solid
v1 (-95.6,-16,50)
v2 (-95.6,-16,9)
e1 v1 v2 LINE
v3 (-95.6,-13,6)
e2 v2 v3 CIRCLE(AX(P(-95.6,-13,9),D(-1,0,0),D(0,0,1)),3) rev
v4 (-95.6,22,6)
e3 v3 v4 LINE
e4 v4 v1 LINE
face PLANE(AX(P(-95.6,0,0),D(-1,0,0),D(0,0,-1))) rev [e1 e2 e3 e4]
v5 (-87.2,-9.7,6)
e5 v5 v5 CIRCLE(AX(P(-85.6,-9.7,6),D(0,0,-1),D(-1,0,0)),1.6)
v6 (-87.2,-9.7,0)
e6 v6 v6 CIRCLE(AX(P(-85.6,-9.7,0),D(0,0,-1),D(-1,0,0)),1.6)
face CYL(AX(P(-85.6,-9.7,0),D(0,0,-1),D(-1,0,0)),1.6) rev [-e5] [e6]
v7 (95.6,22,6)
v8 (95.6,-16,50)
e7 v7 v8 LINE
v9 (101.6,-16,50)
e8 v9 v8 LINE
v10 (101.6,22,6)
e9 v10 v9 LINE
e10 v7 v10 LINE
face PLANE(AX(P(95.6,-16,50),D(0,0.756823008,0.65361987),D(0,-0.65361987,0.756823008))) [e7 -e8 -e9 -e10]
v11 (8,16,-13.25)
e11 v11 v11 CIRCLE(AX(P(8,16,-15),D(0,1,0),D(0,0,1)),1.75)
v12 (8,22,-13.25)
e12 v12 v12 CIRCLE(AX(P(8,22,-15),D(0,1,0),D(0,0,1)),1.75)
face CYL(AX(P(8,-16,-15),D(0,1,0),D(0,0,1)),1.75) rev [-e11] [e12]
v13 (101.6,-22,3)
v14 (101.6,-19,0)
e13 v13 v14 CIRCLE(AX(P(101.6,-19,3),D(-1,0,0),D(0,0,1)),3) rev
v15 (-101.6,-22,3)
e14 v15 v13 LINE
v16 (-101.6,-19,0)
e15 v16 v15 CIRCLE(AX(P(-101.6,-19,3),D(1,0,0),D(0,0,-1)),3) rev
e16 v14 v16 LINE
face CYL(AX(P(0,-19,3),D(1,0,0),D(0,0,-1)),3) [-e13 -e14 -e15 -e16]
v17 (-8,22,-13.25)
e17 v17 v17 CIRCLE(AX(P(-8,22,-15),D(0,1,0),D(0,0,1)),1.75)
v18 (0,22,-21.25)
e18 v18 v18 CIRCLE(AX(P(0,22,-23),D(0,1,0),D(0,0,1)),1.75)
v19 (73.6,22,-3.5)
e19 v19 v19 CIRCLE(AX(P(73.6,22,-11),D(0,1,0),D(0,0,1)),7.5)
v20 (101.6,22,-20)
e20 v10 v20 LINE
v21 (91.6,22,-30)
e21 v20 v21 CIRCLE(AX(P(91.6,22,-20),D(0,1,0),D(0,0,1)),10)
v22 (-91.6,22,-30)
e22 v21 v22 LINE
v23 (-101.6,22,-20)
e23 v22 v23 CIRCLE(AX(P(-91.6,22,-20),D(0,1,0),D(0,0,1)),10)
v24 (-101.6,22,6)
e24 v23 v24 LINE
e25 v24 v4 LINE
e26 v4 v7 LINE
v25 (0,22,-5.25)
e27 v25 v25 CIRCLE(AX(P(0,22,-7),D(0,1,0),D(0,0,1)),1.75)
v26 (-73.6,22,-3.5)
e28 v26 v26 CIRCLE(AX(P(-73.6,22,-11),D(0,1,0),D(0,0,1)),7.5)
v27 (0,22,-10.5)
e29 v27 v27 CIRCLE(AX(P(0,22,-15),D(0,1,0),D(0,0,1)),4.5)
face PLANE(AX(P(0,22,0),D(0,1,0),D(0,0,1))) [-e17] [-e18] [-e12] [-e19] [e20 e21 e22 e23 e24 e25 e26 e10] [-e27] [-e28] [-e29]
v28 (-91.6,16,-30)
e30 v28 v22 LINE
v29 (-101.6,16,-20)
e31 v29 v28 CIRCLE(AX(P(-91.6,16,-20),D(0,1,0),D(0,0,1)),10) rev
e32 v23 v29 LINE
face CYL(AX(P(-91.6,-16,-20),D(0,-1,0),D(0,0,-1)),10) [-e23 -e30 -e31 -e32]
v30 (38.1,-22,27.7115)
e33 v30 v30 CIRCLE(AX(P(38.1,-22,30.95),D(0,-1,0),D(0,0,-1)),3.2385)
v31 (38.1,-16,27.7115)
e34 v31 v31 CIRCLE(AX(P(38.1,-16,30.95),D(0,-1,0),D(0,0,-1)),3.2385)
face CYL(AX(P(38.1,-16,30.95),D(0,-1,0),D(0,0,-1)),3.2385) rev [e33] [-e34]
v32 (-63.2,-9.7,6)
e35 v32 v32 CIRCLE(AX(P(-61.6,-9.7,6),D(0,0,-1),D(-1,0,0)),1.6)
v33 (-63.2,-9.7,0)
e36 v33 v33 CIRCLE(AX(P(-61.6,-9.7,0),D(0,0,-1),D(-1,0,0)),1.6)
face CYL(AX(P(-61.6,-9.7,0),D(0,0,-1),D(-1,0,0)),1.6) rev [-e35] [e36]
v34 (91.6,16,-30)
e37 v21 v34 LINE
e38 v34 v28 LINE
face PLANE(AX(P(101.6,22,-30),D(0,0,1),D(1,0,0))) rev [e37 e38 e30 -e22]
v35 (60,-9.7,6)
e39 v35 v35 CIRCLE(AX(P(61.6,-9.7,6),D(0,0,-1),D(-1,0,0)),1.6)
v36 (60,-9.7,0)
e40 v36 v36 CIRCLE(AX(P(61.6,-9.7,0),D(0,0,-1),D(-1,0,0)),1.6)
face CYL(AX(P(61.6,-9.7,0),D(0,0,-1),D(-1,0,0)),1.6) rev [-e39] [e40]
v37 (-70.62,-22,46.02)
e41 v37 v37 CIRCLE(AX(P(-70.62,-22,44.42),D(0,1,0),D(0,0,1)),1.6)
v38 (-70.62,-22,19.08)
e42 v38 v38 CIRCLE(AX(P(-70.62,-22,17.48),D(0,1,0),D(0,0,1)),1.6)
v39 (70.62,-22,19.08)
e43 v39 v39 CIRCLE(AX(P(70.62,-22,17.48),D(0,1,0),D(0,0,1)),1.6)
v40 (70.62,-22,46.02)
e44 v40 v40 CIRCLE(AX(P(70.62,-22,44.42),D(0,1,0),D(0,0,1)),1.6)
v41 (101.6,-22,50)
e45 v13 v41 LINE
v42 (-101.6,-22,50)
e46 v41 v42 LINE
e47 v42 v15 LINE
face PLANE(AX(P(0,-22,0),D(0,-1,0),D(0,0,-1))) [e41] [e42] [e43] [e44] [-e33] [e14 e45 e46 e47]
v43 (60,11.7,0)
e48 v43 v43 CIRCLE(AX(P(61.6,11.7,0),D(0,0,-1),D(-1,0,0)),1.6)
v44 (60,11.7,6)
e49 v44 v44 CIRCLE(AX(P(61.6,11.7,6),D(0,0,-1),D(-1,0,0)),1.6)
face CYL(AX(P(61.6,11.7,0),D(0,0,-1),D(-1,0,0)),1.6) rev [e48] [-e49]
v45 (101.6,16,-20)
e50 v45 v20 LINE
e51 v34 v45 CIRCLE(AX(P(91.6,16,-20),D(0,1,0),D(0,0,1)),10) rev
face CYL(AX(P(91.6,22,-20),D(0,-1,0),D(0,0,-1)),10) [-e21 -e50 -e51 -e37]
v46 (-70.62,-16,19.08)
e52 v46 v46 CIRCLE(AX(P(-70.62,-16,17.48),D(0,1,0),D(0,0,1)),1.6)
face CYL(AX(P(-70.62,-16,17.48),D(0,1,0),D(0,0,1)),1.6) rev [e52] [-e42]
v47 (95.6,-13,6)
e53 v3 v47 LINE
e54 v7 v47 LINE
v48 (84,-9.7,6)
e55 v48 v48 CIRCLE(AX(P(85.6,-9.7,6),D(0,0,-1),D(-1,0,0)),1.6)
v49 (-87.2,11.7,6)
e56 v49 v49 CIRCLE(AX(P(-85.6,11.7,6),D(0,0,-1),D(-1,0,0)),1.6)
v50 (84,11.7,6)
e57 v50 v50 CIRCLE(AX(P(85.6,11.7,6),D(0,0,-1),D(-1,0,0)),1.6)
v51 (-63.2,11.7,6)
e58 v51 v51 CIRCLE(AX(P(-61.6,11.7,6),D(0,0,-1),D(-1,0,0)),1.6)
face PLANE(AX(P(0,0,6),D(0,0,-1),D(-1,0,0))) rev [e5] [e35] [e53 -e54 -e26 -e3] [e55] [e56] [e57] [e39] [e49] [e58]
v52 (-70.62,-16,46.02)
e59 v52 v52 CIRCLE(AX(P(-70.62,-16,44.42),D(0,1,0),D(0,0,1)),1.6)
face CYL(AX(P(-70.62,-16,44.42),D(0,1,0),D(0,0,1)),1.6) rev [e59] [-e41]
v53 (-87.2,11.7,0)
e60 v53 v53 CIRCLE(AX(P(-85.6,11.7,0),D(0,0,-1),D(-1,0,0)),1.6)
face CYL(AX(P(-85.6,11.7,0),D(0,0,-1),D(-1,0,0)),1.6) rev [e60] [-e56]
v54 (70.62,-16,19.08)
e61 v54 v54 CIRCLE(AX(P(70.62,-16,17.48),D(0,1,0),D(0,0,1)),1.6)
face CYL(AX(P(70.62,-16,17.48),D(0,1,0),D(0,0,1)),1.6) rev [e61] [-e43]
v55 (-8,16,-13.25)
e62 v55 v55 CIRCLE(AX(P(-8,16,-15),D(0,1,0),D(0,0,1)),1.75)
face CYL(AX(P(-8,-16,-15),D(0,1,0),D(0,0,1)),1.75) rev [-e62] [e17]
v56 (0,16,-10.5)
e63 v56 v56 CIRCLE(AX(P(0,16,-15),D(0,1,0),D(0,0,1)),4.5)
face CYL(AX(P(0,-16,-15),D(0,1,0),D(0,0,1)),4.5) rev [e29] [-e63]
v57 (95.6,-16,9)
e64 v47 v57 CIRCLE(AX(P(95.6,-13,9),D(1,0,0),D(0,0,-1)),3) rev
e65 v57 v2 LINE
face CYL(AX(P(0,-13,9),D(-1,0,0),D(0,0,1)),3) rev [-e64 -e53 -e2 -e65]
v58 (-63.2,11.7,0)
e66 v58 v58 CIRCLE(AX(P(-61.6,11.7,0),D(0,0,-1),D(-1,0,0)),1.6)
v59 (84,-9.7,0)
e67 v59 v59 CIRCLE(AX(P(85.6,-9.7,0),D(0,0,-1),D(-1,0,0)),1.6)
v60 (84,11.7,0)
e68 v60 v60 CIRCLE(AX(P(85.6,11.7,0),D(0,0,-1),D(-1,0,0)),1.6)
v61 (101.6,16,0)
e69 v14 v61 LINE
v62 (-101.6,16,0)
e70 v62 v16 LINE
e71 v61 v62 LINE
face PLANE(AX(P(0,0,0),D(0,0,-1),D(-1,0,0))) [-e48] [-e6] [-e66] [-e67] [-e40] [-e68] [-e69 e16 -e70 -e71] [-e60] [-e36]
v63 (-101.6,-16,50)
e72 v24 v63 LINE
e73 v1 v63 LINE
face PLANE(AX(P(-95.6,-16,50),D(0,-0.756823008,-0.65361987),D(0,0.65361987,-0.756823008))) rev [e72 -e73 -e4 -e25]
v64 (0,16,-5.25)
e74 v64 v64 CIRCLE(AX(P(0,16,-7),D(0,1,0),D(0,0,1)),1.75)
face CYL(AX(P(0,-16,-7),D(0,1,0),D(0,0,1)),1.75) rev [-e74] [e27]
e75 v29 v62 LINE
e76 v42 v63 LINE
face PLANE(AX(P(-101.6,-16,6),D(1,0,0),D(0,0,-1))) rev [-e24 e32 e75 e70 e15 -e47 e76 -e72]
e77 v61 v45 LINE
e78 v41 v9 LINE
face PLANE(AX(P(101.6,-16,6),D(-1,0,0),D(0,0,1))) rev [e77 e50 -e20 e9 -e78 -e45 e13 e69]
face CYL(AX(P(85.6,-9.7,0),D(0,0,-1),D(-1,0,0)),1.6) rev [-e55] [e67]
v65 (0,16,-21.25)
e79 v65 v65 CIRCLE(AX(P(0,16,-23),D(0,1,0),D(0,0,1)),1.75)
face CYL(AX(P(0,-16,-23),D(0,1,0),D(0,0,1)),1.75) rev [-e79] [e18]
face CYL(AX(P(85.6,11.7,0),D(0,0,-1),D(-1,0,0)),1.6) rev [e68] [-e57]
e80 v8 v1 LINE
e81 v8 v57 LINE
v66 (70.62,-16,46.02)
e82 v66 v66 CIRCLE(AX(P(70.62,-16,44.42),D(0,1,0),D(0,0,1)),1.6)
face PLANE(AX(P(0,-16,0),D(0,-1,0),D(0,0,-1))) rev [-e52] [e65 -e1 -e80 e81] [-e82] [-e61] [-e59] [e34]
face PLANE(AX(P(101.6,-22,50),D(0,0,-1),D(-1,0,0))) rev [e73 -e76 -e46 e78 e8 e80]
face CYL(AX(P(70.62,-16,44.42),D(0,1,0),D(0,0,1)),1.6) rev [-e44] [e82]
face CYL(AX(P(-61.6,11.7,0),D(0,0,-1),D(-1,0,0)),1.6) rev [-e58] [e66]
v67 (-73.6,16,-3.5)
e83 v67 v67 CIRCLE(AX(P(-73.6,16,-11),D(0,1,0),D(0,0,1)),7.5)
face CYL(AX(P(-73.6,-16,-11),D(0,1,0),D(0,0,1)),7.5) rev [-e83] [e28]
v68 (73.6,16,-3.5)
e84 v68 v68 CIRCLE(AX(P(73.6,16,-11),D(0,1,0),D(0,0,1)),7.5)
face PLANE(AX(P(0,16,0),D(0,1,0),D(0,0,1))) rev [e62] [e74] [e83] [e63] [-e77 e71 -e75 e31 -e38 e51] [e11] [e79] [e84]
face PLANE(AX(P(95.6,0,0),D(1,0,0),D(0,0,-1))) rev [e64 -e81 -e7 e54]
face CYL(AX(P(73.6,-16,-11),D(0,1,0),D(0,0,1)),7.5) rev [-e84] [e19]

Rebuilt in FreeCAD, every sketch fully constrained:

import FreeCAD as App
import Part
import Sketcher

V = App.Vector


def edges_at(feature, points):
    """Names of the edges that pass closest to the given points."""
    edges = feature.Shape.Edges
    near = lambda p: min(range(len(edges)), key=lambda i: edges[i].distToShape(Part.Vertex(*p))[0])
    return sorted({f"Edge{near(p) + 1}" for p in points})


def add_polygon(sketch, points):
    """Adds a closed chain of lines whose ends are joined by coincident constraints."""
    first, n = sketch.GeometryCount, len(points)
    for a, b in zip(points, points[1:] + points[:1]):
        sketch.addGeometry(Part.LineSegment(App.Vector(*a, 0), App.Vector(*b, 0)), False)
    for i in range(n):
        sketch.addConstraint(Sketcher.Constraint("Coincident", first + i, 2, first + (i + 1) % n, 1))

doc = App.newDocument("Part")
body = doc.addObject("PartDesign::Body", "Body")

# Sketch on XY plane
sketch1 = doc.addObject("Sketcher::SketchObject", "Sketch")
body.addObject(sketch1)
sketch1.AttachmentSupport = (doc.XY_Plane, [""])
sketch1.MapMode = "FlatFace"
add_polygon(sketch1, [(-102, 16), (-102, -16), (102, -16), (102, 16)])  # lines 0-3
sketch1.addConstraint([
    Sketcher.Constraint("Vertical", 0),
    Sketcher.Constraint("Horizontal", 1),
    Sketcher.Constraint("Vertical", 2),
    Sketcher.Constraint("Horizontal", 3),
    Sketcher.Constraint("Symmetric", 0, 2, 2, 2, -1, 1),
    Sketcher.Constraint("DistanceY", 0, 2, 0, 1, 32.0),
    Sketcher.Constraint("DistanceX", 1, 1, 1, 2, 203.2),
])
pad1 = doc.addObject("PartDesign::Pad", "Pad")
body.addObject(pad1)
pad1.Profile = sketch1
pad1.Length = 6

# Sketch on XZ plane
sketch2 = doc.addObject("Sketcher::SketchObject", "Sketch001")
body.addObject(sketch2)
sketch2.AttachmentSupport = (doc.XZ_Plane, [""])
sketch2.MapMode = "FlatFace"
sketch2.AttachmentOffset = App.Placement(V(0, 0, -16), App.Rotation())
add_polygon(sketch2, [(-102, -30), (-102, 6), (102, 6), (102, -30)])  # lines 0-3
sketch2.addConstraint([
    Sketcher.Constraint("Vertical", 0),
    Sketcher.Constraint("Horizontal", 1),
    Sketcher.Constraint("Vertical", 2),
    Sketcher.Constraint("Horizontal", 3),
    Sketcher.Constraint("DistanceY", 0, 1, 0, 2, 36.0),
    Sketcher.Constraint("DistanceX", 1, 1, 1, 2, 203.2),
    Sketcher.Constraint("DistanceY", -1, 1, 0, 2, 6.0),
    Sketcher.Constraint("DistanceX", 0, 2, -1, 1, 101.6),
])
pad2 = doc.addObject("PartDesign::Pad", "Pad001")
body.addObject(pad2)
pad2.Profile = sketch2
pad2.Length = 6
pad2.Reversed = True

# Sketch on XZ plane
sketch3 = doc.addObject("Sketcher::SketchObject", "Sketch002")
body.addObject(sketch3)
sketch3.AttachmentSupport = (doc.XZ_Plane, [""])
sketch3.MapMode = "FlatFace"
sketch3.AttachmentOffset = App.Placement(V(0, 0, -22), App.Rotation())
sketch3.addGeometry([
    Part.Circle(V(-73.6, -11, 0), V(0, 0, 1), 7.5),  # 0
    Part.Circle(V(73.6, -11, 0), V(0, 0, 1), 7.5),  # 1
    Part.Circle(V(0, -15, 0), V(0, 0, 1), 4.5),  # 2
    Part.Circle(V(0, -23, 0), V(0, 0, 1), 1.8),  # 3
    Part.Circle(V(0, -7, 0), V(0, 0, 1), 1.8),  # 4
    Part.Circle(V(8, -15, 0), V(0, 0, 1), 1.8),  # 5
    Part.Circle(V(-8, -15, 0), V(0, 0, 1), 1.8),  # 6
], False)
sketch3.addConstraint([
    Sketcher.Constraint("Equal", 0, 1),
    Sketcher.Constraint("Equal", 3, 4),
    Sketcher.Constraint("Equal", 4, 5),
    Sketcher.Constraint("Equal", 5, 6),
    Sketcher.Constraint("Symmetric", 0, 3, 1, 3, -2),
    Sketcher.Constraint("Symmetric", 5, 3, 6, 3, -2),
    Sketcher.Constraint("PointOnObject", 2, 3, -2),
    Sketcher.Constraint("PointOnObject", 3, 3, -2),
    Sketcher.Constraint("PointOnObject", 4, 3, -2),
    Sketcher.Constraint("Horizontal", 2, 3, 5, 3),
    Sketcher.Constraint("Diameter", 0, 15.0),
    Sketcher.Constraint("Diameter", 2, 9.0),
    Sketcher.Constraint("Diameter", 3, 3.5),
    Sketcher.Constraint("DistanceY", 0, 3, -1, 1, 11.0),
    Sketcher.Constraint("DistanceY", 2, 3, -1, 1, 15.0),
    Sketcher.Constraint("DistanceY", 3, 3, -1, 1, 23.0),
    Sketcher.Constraint("DistanceY", 4, 3, -1, 1, 7.0),
    Sketcher.Constraint("DistanceX", -1, 1, 5, 3, 8.0),
    Sketcher.Constraint("DistanceX", 0, 3, -1, 1, 73.6),
])
pocket1 = doc.addObject("PartDesign::Pocket", "Pocket")
body.addObject(pocket1)
pocket1.Profile = sketch3
pocket1.Type = "ThroughAll"
pocket1.Reversed = True

# Sketch on XZ plane
sketch4 = doc.addObject("Sketcher::SketchObject", "Sketch003")
body.addObject(sketch4)
sketch4.AttachmentSupport = (doc.XZ_Plane, [""])
sketch4.MapMode = "FlatFace"
sketch4.AttachmentOffset = App.Placement(V(0, 0, 16), App.Rotation())
add_polygon(sketch4, [(-102, 50), (-102, 0), (102, 0), (102, 50)])  # lines 0-3
sketch4.addConstraint([
    Sketcher.Constraint("Vertical", 0),
    Sketcher.Constraint("Horizontal", 1),
    Sketcher.Constraint("Vertical", 2),
    Sketcher.Constraint("Horizontal", 3),
    Sketcher.Constraint("Symmetric", 0, 2, 1, 2, -1, 1),
    Sketcher.Constraint("DistanceY", 0, 2, 0, 1, 50.0),
    Sketcher.Constraint("DistanceX", 1, 1, 1, 2, 203.2),
])
pad3 = doc.addObject("PartDesign::Pad", "Pad002")
body.addObject(pad3)
pad3.Profile = sketch4
pad3.Length = 6

# Sketch on YZ plane
sketch5 = doc.addObject("Sketcher::SketchObject", "Sketch004")
body.addObject(sketch5)
sketch5.AttachmentSupport = (doc.YZ_Plane, [""])
sketch5.MapMode = "FlatFace"
sketch5.AttachmentOffset = App.Placement(V(0, 0, 101.6), App.Rotation())
add_polygon(sketch5, [(22, 6), (-16, 50), (-16, 0), (22, 0)])  # lines 0-3
sketch5.addConstraint([
    Sketcher.Constraint("Vertical", 1),
    Sketcher.Constraint("Horizontal", 2),
    Sketcher.Constraint("Vertical", 3),
    Sketcher.Constraint("PointOnObject", 1, 2, -1),
    Sketcher.Constraint("DistanceX", 2, 1, 2, 2, 38.0),
    Sketcher.Constraint("DistanceY", 1, 2, 1, 1, 50.0),
    Sketcher.Constraint("DistanceY", 3, 1, 3, 2, 6.0),
    Sketcher.Constraint("DistanceX", 0, 2, -1, 1, 16.0),
])
pad4 = doc.addObject("PartDesign::Pad", "Pad003")
body.addObject(pad4)
pad4.Profile = sketch5
pad4.Length = 6
pad4.Reversed = True
doc.recompute()

mirrored = doc.addObject("PartDesign::Mirrored", "Mirrored")
body.addObject(mirrored)
mirrored.Originals = [pad4]
mirrored.MirrorPlane = (doc.YZ_Plane, [""])
body.Tip = mirrored
doc.recompute()

fillet = doc.addObject("PartDesign::Fillet", "Fillet")
body.addObject(fillet)
fillet.Base = (mirrored, edges_at(mirrored, [(0, -16, 6), (0, -22, 0)]))
fillet.Radius = 3
doc.recompute()

fillet2 = doc.addObject("PartDesign::Fillet", "Fillet001")
body.addObject(fillet2)
fillet2.Base = (fillet, edges_at(fillet, [(101.6, 19, -30), (-101.6, 19, -30)]))
fillet2.Radius = 10

# Sketch on XY plane
sketch6 = doc.addObject("Sketcher::SketchObject", "Sketch005")
body.addObject(sketch6)
sketch6.AttachmentSupport = (doc.XY_Plane, [""])
sketch6.MapMode = "FlatFace"
sketch6.addGeometry([
    Part.Circle(V(85.6, 11.7, 0), V(0, 0, 1), 1.6),  # 0
    Part.Circle(V(61.6, 11.7, 0), V(0, 0, 1), 1.6),  # 1
    Part.Circle(V(85.6, -9.7, 0), V(0, 0, 1), 1.6),  # 2
    Part.Circle(V(61.6, -9.7, 0), V(0, 0, 1), 1.6),  # 3
    Part.Circle(V(-61.6, 11.7, 0), V(0, 0, 1), 1.6),  # 4
    Part.Circle(V(-85.6, 11.7, 0), V(0, 0, 1), 1.6),  # 5
    Part.Circle(V(-61.6, -9.7, 0), V(0, 0, 1), 1.6),  # 6
    Part.Circle(V(-85.6, -9.7, 0), V(0, 0, 1), 1.6),  # 7
], False)
sketch6.addConstraint([
    Sketcher.Constraint("Equal", 0, 1),
    Sketcher.Constraint("Equal", 1, 2),
    Sketcher.Constraint("Equal", 2, 3),
    Sketcher.Constraint("Equal", 3, 4),
    Sketcher.Constraint("Equal", 4, 5),
    Sketcher.Constraint("Equal", 5, 6),
    Sketcher.Constraint("Equal", 6, 7),
    Sketcher.Constraint("Symmetric", 1, 3, 4, 3, -2),
    Sketcher.Constraint("Symmetric", 0, 3, 5, 3, -2),
    Sketcher.Constraint("Symmetric", 3, 3, 6, 3, -2),
    Sketcher.Constraint("Symmetric", 2, 3, 7, 3, -2),
    Sketcher.Constraint("Horizontal", 0, 3, 1, 3),
    Sketcher.Constraint("Horizontal", 2, 3, 3, 3),
    Sketcher.Constraint("Vertical", 0, 3, 2, 3),
    Sketcher.Constraint("Vertical", 1, 3, 3, 3),
    Sketcher.Constraint("Diameter", 0, 3.2),
    Sketcher.Constraint("DistanceX", 1, 3, 0, 3, 24.0),
    Sketcher.Constraint("DistanceX", -1, 1, 0, 3, 85.6),
    Sketcher.Constraint("DistanceY", -1, 1, 0, 3, 11.7),
    Sketcher.Constraint("DistanceY", 2, 3, -1, 1, 9.7),
])
doc.recompute()
hole = doc.addObject("PartDesign::Hole", "Hole")
body.addObject(hole)
hole.Profile = sketch6
hole.ThreadType = "None"
hole.Diameter = 3.2
hole.DepthType = "Dimension"
hole.Depth = 6
hole.DrillPoint = "Angled"
hole.DrillPointAngle = 118
hole.Reversed = True

# Sketch on XZ plane
sketch7 = doc.addObject("Sketcher::SketchObject", "Sketch006")
body.addObject(sketch7)
sketch7.AttachmentSupport = (doc.XZ_Plane, [""])
sketch7.MapMode = "FlatFace"
sketch7.AttachmentOffset = App.Placement(V(0, 0, 22), App.Rotation())
sketch7.addGeometry(Part.Circle(V(38.1, 30.9, 0), V(0, 0, 1), 3.2), False)
sketch7.addConstraint([
    Sketcher.Constraint("Diameter", 0, 6.477),
    Sketcher.Constraint("DistanceX", -1, 1, 0, 3, 38.1),
    Sketcher.Constraint("DistanceY", -1, 1, 0, 3, 30.95),
])
pocket2 = doc.addObject("PartDesign::Pocket", "Pocket001")
body.addObject(pocket2)
pocket2.Profile = sketch7
pocket2.Length = 6

# Sketch on XZ plane
sketch8 = doc.addObject("Sketcher::SketchObject", "Sketch007")
body.addObject(sketch8)
sketch8.AttachmentSupport = (doc.XZ_Plane, [""])
sketch8.MapMode = "FlatFace"
sketch8.AttachmentOffset = App.Placement(V(0, 0, 16), App.Rotation())
sketch8.addGeometry([
    Part.Circle(V(-70.6, 17.5, 0), V(0, 0, 1), 1.6),
    Part.Circle(V(-70.6, 44.4, 0), V(0, 0, 1), 1.6),
    Part.Circle(V(70.6, 17.5, 0), V(0, 0, 1), 1.6),
    Part.Circle(V(70.6, 44.4, 0), V(0, 0, 1), 1.6),
], False)
sketch8.addConstraint([
    Sketcher.Constraint("Equal", 0, 1),
    Sketcher.Constraint("Equal", 1, 2),
    Sketcher.Constraint("Equal", 2, 3),
    Sketcher.Constraint("Symmetric", 0, 3, 2, 3, -2),
    Sketcher.Constraint("Symmetric", 1, 3, 3, 3, -2),
    Sketcher.Constraint("Vertical", 0, 3, 1, 3),
    Sketcher.Constraint("Diameter", 0, 3.2),
    Sketcher.Constraint("DistanceX", 0, 3, -1, 1, 70.62),
    Sketcher.Constraint("DistanceY", -1, 1, 0, 3, 17.48),
    Sketcher.Constraint("DistanceY", -1, 1, 1, 3, 44.42),
])
doc.recompute()
hole2 = doc.addObject("PartDesign::Hole", "Hole001")
body.addObject(hole2)
hole2.Profile = sketch8
hole2.ThreadType = "None"
hole2.Diameter = 3.2
hole2.DepthType = "Dimension"
hole2.Depth = 6
hole2.DrillPoint = "Angled"
hole2.DrillPointAngle = 118
hole2.Reversed = True

doc.recompute()
